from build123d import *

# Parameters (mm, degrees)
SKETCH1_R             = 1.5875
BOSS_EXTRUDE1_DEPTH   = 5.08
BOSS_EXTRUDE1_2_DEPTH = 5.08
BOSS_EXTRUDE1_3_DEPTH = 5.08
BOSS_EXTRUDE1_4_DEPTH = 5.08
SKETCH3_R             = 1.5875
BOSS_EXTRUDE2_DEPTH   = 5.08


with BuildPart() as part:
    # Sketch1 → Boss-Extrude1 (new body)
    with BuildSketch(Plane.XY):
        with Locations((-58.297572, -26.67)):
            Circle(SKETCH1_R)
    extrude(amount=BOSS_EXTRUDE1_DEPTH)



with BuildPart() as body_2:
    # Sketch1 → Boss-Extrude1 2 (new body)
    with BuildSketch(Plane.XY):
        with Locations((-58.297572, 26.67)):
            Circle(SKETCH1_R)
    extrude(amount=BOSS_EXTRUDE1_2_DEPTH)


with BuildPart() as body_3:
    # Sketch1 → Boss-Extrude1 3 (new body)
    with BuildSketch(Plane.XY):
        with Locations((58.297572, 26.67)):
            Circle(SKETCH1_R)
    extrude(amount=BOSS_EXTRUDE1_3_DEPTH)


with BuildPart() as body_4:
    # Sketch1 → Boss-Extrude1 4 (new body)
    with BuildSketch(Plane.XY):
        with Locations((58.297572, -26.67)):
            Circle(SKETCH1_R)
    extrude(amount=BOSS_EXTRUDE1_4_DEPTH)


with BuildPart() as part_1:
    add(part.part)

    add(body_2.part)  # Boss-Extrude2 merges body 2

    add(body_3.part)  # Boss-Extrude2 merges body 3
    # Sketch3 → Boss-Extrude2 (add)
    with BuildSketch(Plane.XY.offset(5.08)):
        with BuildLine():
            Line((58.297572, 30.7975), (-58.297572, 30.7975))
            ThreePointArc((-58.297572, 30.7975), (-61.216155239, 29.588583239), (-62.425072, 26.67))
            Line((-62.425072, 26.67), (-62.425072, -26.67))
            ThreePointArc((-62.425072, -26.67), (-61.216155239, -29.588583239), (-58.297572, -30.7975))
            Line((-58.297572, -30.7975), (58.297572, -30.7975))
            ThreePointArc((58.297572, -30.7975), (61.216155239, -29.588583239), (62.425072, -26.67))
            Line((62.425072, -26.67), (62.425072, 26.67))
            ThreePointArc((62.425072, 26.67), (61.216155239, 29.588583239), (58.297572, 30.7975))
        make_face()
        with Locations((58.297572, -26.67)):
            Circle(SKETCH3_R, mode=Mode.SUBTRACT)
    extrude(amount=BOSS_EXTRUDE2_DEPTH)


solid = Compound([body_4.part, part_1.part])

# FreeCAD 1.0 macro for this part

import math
import FreeCAD as App
import Part
import Sketcher
Q = App.Units.Quantity

doc = App.newDocument("Part")
body = doc.addObject("PartDesign::Body", "Body")

# Sketch on XY plane
sketch1 = body.newObject("Sketcher::SketchObject", "Sketch")
sketch1.AttachmentSupport = (doc.getObject("XY_Plane"), [""])
sketch1.MapMode = "FlatFace"
sketch1.addGeometry(Part.Circle(App.Vector(-58.3, -26.7, 0), App.Vector(0, 0, 1), 1.6), False)
sketch1.addConstraint(Sketcher.Constraint("Diameter", 0, Q("0.125 in")))
sketch1.addConstraint(Sketcher.Constraint("DistanceY", 0, 3, -1, 1, Q("1.05 in")))
sketch1.addConstraint(Sketcher.Constraint("DistanceX", 0, 3, -1, 1, Q("58.297572 mm")))
pad1 = body.newObject("PartDesign::Pad", "Pad")
pad1.Profile = sketch1
pad1.Length = Q("0.2 in")
body2 = doc.addObject("PartDesign::Body", "Body001")

# Sketch on XY plane
sketch2 = body2.newObject("Sketcher::SketchObject", "Sketch001")
sketch2.AttachmentSupport = (doc.getObject("XY_Plane001"), [""])
sketch2.MapMode = "FlatFace"
sketch2.addGeometry(Part.Circle(App.Vector(-58.3, 26.7, 0), App.Vector(0, 0, 1), 1.6), False)
sketch2.addConstraint(Sketcher.Constraint("Diameter", 0, Q("0.125 in")))
sketch2.addConstraint(Sketcher.Constraint("DistanceY", -1, 1, 0, 3, Q("1.05 in")))
sketch2.addConstraint(Sketcher.Constraint("DistanceX", 0, 3, -1, 1, Q("58.297572 mm")))
pad2 = body2.newObject("PartDesign::Pad", "Pad001")
pad2.Profile = sketch2
pad2.Length = Q("0.2 in")
body3 = doc.addObject("PartDesign::Body", "Body002")

# Sketch on XY plane
sketch3 = body3.newObject("Sketcher::SketchObject", "Sketch002")
sketch3.AttachmentSupport = (doc.getObject("XY_Plane002"), [""])
sketch3.MapMode = "FlatFace"
sketch3.addGeometry(Part.Circle(App.Vector(58.3, 26.7, 0), App.Vector(0, 0, 1), 1.6), False)
sketch3.addConstraint(Sketcher.Constraint("Diameter", 0, Q("0.125 in")))
sketch3.addConstraint(Sketcher.Constraint("DistanceY", -1, 1, 0, 3, Q("1.05 in")))
sketch3.addConstraint(Sketcher.Constraint("DistanceX", -1, 1, 0, 3, Q("58.297572 mm")))
pad3 = body3.newObject("PartDesign::Pad", "Pad002")
pad3.Profile = sketch3
pad3.Length = Q("0.2 in")
body4 = doc.addObject("PartDesign::Body", "Body003")

# Sketch on XY plane
sketch4 = body4.newObject("Sketcher::SketchObject", "Sketch003")
sketch4.AttachmentSupport = (doc.getObject("XY_Plane003"), [""])
sketch4.MapMode = "FlatFace"
sketch4.addGeometry(Part.Circle(App.Vector(58.3, -26.7, 0), App.Vector(0, 0, 1), 1.6), False)
sketch4.addConstraint(Sketcher.Constraint("Diameter", 0, Q("0.125 in")))
sketch4.addConstraint(Sketcher.Constraint("DistanceY", 0, 3, -1, 1, Q("1.05 in")))
sketch4.addConstraint(Sketcher.Constraint("DistanceX", -1, 1, 0, 3, Q("58.297572 mm")))
pad4 = body4.newObject("PartDesign::Pad", "Pad003")
pad4.Profile = sketch4
pad4.Length = Q("0.2 in")
body.AllowCompound = True
doc.recompute()

boolean = body.newObject("PartDesign::Boolean", "Boolean")
boolean.Type = "Fuse"
boolean.addObjects([body2])
doc.recompute()

boolean2 = body.newObject("PartDesign::Boolean", "Boolean001")
boolean2.Type = "Fuse"
boolean2.addObjects([body3])

# Sketch on XY plane
sketch5 = body.newObject("Sketcher::SketchObject", "Sketch004")
sketch5.AttachmentSupport = (doc.getObject("XY_Plane"), [""])
sketch5.MapMode = "FlatFace"
sketch5.AttachmentOffset = App.Placement(App.Vector(0, 0, 0.2 * 25.4), App.Rotation())
sketch5.addGeometry(Part.LineSegment(App.Vector(58.3, 30.8, 0), App.Vector(-58.3, 30.8, 0)), False)
sketch5.addGeometry(Part.ArcOfCircle(Part.Circle(App.Vector(-58.3, 26.7, 0), App.Vector(0, 0, 1), 4.1), math.radians(90), math.radians(180)), False)
sketch5.addGeometry(Part.LineSegment(App.Vector(-62.4, 26.7, 0), App.Vector(-62.4, -26.7, 0)), False)
sketch5.addGeometry(Part.ArcOfCircle(Part.Circle(App.Vector(-58.3, -26.7, 0), App.Vector(0, 0, 1), 4.1), math.radians(-180), math.radians(-90)), False)
sketch5.addGeometry(Part.LineSegment(App.Vector(-58.3, -30.8, 0), App.Vector(58.3, -30.8, 0)), False)
sketch5.addGeometry(Part.ArcOfCircle(Part.Circle(App.Vector(58.3, -26.7, 0), App.Vector(0, 0, 1), 4.1), math.radians(-90), math.radians(0)), False)
sketch5.addGeometry(Part.LineSegment(App.Vector(62.4, -26.7, 0), App.Vector(62.4, 26.7, 0)), False)
sketch5.addGeometry(Part.ArcOfCircle(Part.Circle(App.Vector(58.3, 26.7, 0), App.Vector(0, 0, 1), 4.1), math.radians(0), math.radians(90)), False)
sketch5.addGeometry(Part.Circle(App.Vector(58.3, -26.7, 0), App.Vector(0, 0, 1), 1.6), False)
sketch5.addConstraint(Sketcher.Constraint("Tangent", 0, 2, 1, 1))
sketch5.addConstraint(Sketcher.Constraint("Tangent", 1, 2, 2, 1))
sketch5.addConstraint(Sketcher.Constraint("Tangent", 2, 2, 3, 1))
sketch5.addConstraint(Sketcher.Constraint("Tangent", 3, 2, 4, 1))
sketch5.addConstraint(Sketcher.Constraint("Tangent", 4, 2, 5, 1))
sketch5.addConstraint(Sketcher.Constraint("Tangent", 5, 2, 6, 1))
sketch5.addConstraint(Sketcher.Constraint("Tangent", 6, 2, 7, 1))
sketch5.addConstraint(Sketcher.Constraint("Tangent", 7, 2, 0, 1))
sketch5.addConstraint(Sketcher.Constraint("Horizontal", 0))
sketch5.addConstraint(Sketcher.Constraint("Vertical", 2))
sketch5.addConstraint(Sketcher.Constraint("Horizontal", 4))
sketch5.addConstraint(Sketcher.Constraint("Vertical", 6))
sketch5.addConstraint(Sketcher.Constraint("Coincident", 8, 3, 5, 3))
sketch5.addConstraint(Sketcher.Constraint("Equal", 1, 3))
sketch5.addConstraint(Sketcher.Constraint("Equal", 3, 5))
sketch5.addConstraint(Sketcher.Constraint("Equal", 5, 7))
sketch5.addConstraint(Sketcher.Constraint("Symmetric", 1, 3, 5, 3, -1, 1))
sketch5.addConstraint(Sketcher.Constraint("Diameter", 8, Q("0.125 in")))
sketch5.addConstraint(Sketcher.Constraint("DistanceY", 2, 2, 2, 1, Q("2.1 in")))
sketch5.addConstraint(Sketcher.Constraint("Radius", 1, Q("0.1625 in")))
sketch5.addConstraint(Sketcher.Constraint("DistanceX", 0, 2, 0, 1, Q("116.595144 mm")))
pad5 = body.newObject("PartDesign::Pad", "Pad004")
pad5.Profile = sketch5
pad5.Length = Q("0.2 in")

doc.recompute()
